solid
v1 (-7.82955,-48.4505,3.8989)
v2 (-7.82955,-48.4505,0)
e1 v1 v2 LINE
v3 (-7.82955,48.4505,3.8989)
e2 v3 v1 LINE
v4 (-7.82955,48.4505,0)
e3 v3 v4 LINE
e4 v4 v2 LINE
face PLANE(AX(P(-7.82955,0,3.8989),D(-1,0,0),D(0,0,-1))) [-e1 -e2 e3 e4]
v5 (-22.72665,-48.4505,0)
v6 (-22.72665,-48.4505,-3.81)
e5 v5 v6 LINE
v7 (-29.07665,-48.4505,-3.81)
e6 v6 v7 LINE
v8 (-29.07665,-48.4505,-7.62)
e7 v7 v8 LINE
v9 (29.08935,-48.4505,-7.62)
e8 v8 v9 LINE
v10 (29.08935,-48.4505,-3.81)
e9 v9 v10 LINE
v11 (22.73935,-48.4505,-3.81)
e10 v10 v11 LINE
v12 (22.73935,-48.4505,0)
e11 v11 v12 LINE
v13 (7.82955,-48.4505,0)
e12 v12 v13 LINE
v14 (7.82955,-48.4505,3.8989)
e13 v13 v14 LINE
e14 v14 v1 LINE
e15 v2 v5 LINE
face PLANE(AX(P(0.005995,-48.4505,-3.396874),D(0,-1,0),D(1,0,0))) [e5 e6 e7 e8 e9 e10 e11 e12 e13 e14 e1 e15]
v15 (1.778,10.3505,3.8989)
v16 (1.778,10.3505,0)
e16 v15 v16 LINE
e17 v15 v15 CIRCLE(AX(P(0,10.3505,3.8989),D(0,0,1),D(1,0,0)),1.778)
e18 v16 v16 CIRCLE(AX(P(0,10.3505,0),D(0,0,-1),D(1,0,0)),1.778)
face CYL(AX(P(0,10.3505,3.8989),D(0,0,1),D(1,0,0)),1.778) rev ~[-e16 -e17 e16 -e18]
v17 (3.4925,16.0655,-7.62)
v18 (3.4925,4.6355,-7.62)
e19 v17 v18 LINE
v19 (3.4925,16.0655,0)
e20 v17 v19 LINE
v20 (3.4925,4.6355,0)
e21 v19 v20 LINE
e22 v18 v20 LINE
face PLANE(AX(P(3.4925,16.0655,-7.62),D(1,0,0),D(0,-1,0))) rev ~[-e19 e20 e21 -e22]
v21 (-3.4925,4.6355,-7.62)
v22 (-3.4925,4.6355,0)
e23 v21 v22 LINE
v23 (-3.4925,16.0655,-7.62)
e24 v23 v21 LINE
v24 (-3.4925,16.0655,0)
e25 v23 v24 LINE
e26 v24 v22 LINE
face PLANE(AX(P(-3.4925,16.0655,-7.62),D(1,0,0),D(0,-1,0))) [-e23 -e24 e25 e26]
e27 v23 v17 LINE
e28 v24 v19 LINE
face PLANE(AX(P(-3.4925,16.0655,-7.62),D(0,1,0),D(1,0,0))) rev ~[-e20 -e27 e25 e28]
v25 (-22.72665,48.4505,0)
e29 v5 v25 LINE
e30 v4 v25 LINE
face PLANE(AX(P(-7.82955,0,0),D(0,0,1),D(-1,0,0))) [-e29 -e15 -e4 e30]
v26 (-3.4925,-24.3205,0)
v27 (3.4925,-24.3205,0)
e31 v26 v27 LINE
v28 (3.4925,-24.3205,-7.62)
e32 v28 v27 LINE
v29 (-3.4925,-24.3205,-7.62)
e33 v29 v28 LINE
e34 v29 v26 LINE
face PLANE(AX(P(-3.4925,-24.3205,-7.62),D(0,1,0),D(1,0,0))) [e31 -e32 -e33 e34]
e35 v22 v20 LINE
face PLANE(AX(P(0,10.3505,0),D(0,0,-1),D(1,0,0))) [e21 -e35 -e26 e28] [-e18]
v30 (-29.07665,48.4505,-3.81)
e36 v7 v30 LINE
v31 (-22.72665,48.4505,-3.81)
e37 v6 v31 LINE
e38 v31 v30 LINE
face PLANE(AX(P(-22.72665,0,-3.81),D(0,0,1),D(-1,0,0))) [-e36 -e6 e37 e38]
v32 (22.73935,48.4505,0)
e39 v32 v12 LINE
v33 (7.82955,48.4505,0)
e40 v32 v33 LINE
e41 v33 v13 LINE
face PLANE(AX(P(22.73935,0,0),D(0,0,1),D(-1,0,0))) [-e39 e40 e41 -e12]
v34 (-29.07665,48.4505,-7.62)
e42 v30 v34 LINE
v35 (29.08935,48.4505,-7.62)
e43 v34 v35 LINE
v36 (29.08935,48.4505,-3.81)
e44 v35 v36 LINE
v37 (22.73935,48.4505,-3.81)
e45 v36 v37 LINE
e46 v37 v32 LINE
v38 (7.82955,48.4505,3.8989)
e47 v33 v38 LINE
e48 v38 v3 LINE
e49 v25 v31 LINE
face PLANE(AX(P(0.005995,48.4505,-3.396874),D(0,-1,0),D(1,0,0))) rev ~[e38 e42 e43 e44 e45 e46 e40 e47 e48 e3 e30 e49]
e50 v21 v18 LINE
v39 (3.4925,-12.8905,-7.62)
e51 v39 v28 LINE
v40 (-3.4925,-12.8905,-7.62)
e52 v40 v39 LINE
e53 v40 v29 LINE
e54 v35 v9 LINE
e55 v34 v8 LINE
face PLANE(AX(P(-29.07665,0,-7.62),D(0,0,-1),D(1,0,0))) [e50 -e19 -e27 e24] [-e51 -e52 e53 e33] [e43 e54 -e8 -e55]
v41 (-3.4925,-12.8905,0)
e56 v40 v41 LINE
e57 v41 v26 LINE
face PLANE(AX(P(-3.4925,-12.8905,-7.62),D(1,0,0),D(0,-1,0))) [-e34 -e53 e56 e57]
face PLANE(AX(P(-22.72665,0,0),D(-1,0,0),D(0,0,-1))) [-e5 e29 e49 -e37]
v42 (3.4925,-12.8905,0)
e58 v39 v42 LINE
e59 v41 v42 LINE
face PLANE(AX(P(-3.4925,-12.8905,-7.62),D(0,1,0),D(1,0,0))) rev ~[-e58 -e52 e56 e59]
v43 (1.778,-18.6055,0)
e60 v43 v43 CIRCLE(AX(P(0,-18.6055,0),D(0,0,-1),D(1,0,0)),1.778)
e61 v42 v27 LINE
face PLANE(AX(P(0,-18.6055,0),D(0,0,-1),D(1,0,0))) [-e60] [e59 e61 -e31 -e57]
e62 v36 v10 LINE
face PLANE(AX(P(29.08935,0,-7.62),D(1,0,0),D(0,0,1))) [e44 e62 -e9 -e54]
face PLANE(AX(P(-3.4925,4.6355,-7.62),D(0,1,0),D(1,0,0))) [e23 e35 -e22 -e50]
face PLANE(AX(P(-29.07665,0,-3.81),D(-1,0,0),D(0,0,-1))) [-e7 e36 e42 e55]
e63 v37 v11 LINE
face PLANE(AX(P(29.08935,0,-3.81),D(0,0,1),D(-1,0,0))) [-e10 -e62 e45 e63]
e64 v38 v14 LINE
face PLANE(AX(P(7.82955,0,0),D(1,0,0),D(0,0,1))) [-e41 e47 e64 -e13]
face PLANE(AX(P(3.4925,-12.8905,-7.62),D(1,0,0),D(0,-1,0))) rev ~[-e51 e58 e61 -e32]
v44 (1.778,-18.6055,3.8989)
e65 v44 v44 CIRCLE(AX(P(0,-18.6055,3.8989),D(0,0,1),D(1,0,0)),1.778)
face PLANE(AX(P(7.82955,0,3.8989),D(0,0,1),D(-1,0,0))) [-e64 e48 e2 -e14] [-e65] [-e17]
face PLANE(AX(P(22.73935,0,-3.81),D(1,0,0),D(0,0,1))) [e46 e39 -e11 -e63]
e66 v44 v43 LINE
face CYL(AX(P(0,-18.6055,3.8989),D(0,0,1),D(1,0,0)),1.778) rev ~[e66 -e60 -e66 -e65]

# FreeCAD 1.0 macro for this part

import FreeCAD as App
import Part
import Sketcher

V = App.Vector
Q = App.Units.Quantity

doc = App.newDocument("Part")
body = doc.addObject("PartDesign::Body", "Body")

# Sketch on XZ plane
sketch1 = doc.addObject("Sketcher::SketchObject", "Sketch")
body.addObject(sketch1)
sketch1.AttachmentSupport = (doc.XZ_Plane, [""])
sketch1.MapMode = "FlatFace"
sketch1.addGeometry([
    Part.LineSegment(V(-29.07665, -3.81, 0), V(-29.07665, -7.62, 0)),  # 0
    Part.LineSegment(V(-29.07665, -7.62, 0), V(29.08935, -7.62, 0)),  # 1
    Part.LineSegment(V(29.08935, -7.62, 0), V(29.08935, -3.81, 0)),  # 2
    Part.LineSegment(V(29.08935, -3.81, 0), V(22.73935, -3.81, 0)),  # 3
    Part.LineSegment(V(22.73935, -3.81, 0), V(22.73935, 0, 0)),  # 4
    Part.LineSegment(V(22.73935, 0, 0), V(7.82955, 0, 0)),  # 5
    Part.LineSegment(V(7.82955, 0, 0), V(7.82955, 3.8989, 0)),  # 6
    Part.LineSegment(V(7.82955, 3.8989, 0), V(-7.82955, 3.8989, 0)),  # 7
    Part.LineSegment(V(-7.82955, 3.8989, 0), V(-7.82955, 0, 0)),  # 8
    Part.LineSegment(V(-7.82955, 0, 0), V(-22.72665, 0, 0)),  # 9
    Part.LineSegment(V(-22.72665, 0, 0), V(-22.72665, -3.81, 0)),  # 10
    Part.LineSegment(V(-22.72665, -3.81, 0), V(-29.07665, -3.81, 0)),  # 11
], False)
sketch1.addConstraint([
    Sketcher.Constraint("Coincident", 0, 2, 1, 1),
    Sketcher.Constraint("Coincident", 1, 2, 2, 1),
    Sketcher.Constraint("Coincident", 2, 2, 3, 1),
    Sketcher.Constraint("Coincident", 3, 2, 4, 1),
    Sketcher.Constraint("Coincident", 4, 2, 5, 1),
    Sketcher.Constraint("Coincident", 5, 2, 6, 1),
    Sketcher.Constraint("Coincident", 6, 2, 7, 1),
    Sketcher.Constraint("Coincident", 7, 2, 8, 1),
    Sketcher.Constraint("Coincident", 8, 2, 9, 1),
    Sketcher.Constraint("Coincident", 9, 2, 10, 1),
    Sketcher.Constraint("Coincident", 10, 2, 11, 1),
    Sketcher.Constraint("Coincident", 11, 2, 0, 1),
    Sketcher.Constraint("Vertical", 0),
    Sketcher.Constraint("Horizontal", 1),
    Sketcher.Constraint("Vertical", 2),
    Sketcher.Constraint("Horizontal", 3),
    Sketcher.Constraint("Vertical", 4),
    Sketcher.Constraint("Horizontal", 5),
    Sketcher.Constraint("Vertical", 6),
    Sketcher.Constraint("Horizontal", 7),
    Sketcher.Constraint("Vertical", 8),
    Sketcher.Constraint("Horizontal", 9),
    Sketcher.Constraint("Vertical", 10),
    Sketcher.Constraint("Horizontal", 11),
    Sketcher.Constraint("Symmetric", 5, 2, 8, 2, -1, 1),
    Sketcher.Constraint("PointOnObject", 4, 2, -1),
    Sketcher.Constraint("Horizontal", 3, 2, 10, 2),
    Sketcher.Constraint("Equal", 3, 11),
    Sketcher.Constraint("Equal", 2, 4),
    Sketcher.Constraint("DistanceX", 1, 1, 1, 2, Q("2.29 in")),
    Sketcher.Constraint("DistanceX", 3, 2, 3, 1, Q("0.25 in")),
    Sketcher.Constraint("DistanceY", 0, 2, 0, 1, Q("0.15 in")),
    Sketcher.Constraint("DistanceX", 5, 2, 5, 1, Q("0.587 in")),
    Sketcher.Constraint("DistanceX", 7, 2, 7, 1, Q("0.6165 in")),
    Sketcher.Constraint("DistanceY", 6, 1, 6, 2, Q("0.1535 in")),
])
pad1 = doc.addObject("PartDesign::Pad", "Pad")
body.addObject(pad1)
pad1.Profile = sketch1
pad1.Length = Q("3.815 in")
pad1.Midplane = True

# Sketch on XY plane
sketch2 = doc.addObject("Sketcher::SketchObject", "Sketch001")
body.addObject(sketch2)
sketch2.AttachmentSupport = (doc.XY_Plane, [""])
sketch2.MapMode = "FlatFace"
sketch2.AttachmentOffset = App.Placement(V(0, 0, 0.1535 * 25.4), App.Rotation())
sketch2.addGeometry([
    Part.Circle(V(0, 10.3505, 0), V(0, 0, 1), 1.778),
    Part.Circle(V(0, -18.6055, 0), V(0, 0, 1), 1.778),
], False)
sketch2.addConstraint([
    Sketcher.Constraint("Equal", 0, 1),
    Sketcher.Constraint("PointOnObject", 0, 3, -2),
    Sketcher.Constraint("PointOnObject", 1, 3, -2),
    Sketcher.Constraint("Diameter", 0, Q("0.14 in")),
    Sketcher.Constraint("DistanceY", 1, 3, 0, 3, Q("1.14 in")),
    Sketcher.Constraint("DistanceY", -1, 1, 0, 3, Q("0.4075 in")),
])
pocket1 = doc.addObject("PartDesign::Pocket", "Pocket")
body.addObject(pocket1)
pocket1.Profile = sketch2
pocket1.Type = "ThroughAll"

# Sketch on XY plane
sketch3 = doc.addObject("Sketcher::SketchObject", "Sketch002")
body.addObject(sketch3)
sketch3.AttachmentSupport = (doc.XY_Plane, [""])
sketch3.MapMode = "FlatFace"
sketch3.AttachmentOffset = App.Placement(V(0, 0, -0.3 * 25.4), App.Rotation())
sketch3.addGeometry([
    Part.LineSegment(V(-3.4925, -24.3205, 0), V(-3.4925, -12.8905, 0)),  # 0
    Part.LineSegment(V(-3.4925, -12.8905, 0), V(3.4925, -12.8905, 0)),  # 1
    Part.LineSegment(V(3.4925, -12.8905, 0), V(3.4925, -24.3205, 0)),  # 2
    Part.LineSegment(V(3.4925, -24.3205, 0), V(-3.4925, -24.3205, 0)),  # 3
    Part.Circle(V(0, -18.6055, 0), V(0, 0, 1), 1.778),  # 4
    Part.LineSegment(V(-3.4925, 4.6355, 0), V(-3.4925, 16.0655, 0)),  # 5
    Part.LineSegment(V(-3.4925, 16.0655, 0), V(3.4925, 16.0655, 0)),  # 6
    Part.LineSegment(V(3.4925, 16.0655, 0), V(3.4925, 4.6355, 0)),  # 7
    Part.LineSegment(V(3.4925, 4.6355, 0), V(-3.4925, 4.6355, 0)),  # 8
    Part.Circle(V(0, 10.3505, 0), V(0, 0, 1), 1.778),  # 9
], False)
sketch3.addConstraint([
    Sketcher.Constraint("Coincident", 0, 2, 1, 1),
    Sketcher.Constraint("Coincident", 1, 2, 2, 1),
    Sketcher.Constraint("Coincident", 2, 2, 3, 1),
    Sketcher.Constraint("Coincident", 3, 2, 0, 1),
    Sketcher.Constraint("Coincident", 5, 2, 6, 1),
    Sketcher.Constraint("Coincident", 6, 2, 7, 1),
    Sketcher.Constraint("Coincident", 7, 2, 8, 1),
    Sketcher.Constraint("Coincident", 8, 2, 5, 1),
    Sketcher.Constraint("Vertical", 0),
    Sketcher.Constraint("Horizontal", 1),
    Sketcher.Constraint("Vertical", 2),
    Sketcher.Constraint("Horizontal", 3),
    Sketcher.Constraint("Vertical", 5),
    Sketcher.Constraint("Horizontal", 6),
    Sketcher.Constraint("Vertical", 7),
    Sketcher.Constraint("Horizontal", 8),
    Sketcher.Constraint("Equal", 4, 9),
    Sketcher.Constraint("PointOnObject", 4, 3, -2),
    Sketcher.Constraint("PointOnObject", 9, 3, -2),
    Sketcher.Constraint("Vertical", 3, 2, 5, 2),
    Sketcher.Constraint("Vertical", 2, 2, 6, 2),
    Sketcher.Constraint("Equal", 2, 5),
    Sketcher.Constraint("Diameter", 4, Q("0.14 in")),
    Sketcher.Constraint("DistanceY", 0, 1, 0, 2, Q("0.45 in")),
    Sketcher.Constraint("DistanceX", 1, 1, 1, 2, Q("0.275 in")),
    Sketcher.Constraint("DistanceY", 4, 3, 9, 3, Q("1.14 in")),
    Sketcher.Constraint("DistanceY", 0, 2, 5, 2, Q("1.14 in")),
    Sketcher.Constraint("DistanceY", 4, 3, 0, 2, Q("0.225 in")),
    Sketcher.Constraint("DistanceY", 4, 3, -1, 1, Q("0.7325 in")),
    Sketcher.Constraint("DistanceX", 0, 2, -1, 1, Q("0.1375 in")),
])
pocket2 = doc.addObject("PartDesign::Pocket", "Pocket001")
body.addObject(pocket2)
pocket2.Profile = sketch3
pocket2.Length = Q("0.3 in")
pocket2.Reversed = True

doc.recompute()
